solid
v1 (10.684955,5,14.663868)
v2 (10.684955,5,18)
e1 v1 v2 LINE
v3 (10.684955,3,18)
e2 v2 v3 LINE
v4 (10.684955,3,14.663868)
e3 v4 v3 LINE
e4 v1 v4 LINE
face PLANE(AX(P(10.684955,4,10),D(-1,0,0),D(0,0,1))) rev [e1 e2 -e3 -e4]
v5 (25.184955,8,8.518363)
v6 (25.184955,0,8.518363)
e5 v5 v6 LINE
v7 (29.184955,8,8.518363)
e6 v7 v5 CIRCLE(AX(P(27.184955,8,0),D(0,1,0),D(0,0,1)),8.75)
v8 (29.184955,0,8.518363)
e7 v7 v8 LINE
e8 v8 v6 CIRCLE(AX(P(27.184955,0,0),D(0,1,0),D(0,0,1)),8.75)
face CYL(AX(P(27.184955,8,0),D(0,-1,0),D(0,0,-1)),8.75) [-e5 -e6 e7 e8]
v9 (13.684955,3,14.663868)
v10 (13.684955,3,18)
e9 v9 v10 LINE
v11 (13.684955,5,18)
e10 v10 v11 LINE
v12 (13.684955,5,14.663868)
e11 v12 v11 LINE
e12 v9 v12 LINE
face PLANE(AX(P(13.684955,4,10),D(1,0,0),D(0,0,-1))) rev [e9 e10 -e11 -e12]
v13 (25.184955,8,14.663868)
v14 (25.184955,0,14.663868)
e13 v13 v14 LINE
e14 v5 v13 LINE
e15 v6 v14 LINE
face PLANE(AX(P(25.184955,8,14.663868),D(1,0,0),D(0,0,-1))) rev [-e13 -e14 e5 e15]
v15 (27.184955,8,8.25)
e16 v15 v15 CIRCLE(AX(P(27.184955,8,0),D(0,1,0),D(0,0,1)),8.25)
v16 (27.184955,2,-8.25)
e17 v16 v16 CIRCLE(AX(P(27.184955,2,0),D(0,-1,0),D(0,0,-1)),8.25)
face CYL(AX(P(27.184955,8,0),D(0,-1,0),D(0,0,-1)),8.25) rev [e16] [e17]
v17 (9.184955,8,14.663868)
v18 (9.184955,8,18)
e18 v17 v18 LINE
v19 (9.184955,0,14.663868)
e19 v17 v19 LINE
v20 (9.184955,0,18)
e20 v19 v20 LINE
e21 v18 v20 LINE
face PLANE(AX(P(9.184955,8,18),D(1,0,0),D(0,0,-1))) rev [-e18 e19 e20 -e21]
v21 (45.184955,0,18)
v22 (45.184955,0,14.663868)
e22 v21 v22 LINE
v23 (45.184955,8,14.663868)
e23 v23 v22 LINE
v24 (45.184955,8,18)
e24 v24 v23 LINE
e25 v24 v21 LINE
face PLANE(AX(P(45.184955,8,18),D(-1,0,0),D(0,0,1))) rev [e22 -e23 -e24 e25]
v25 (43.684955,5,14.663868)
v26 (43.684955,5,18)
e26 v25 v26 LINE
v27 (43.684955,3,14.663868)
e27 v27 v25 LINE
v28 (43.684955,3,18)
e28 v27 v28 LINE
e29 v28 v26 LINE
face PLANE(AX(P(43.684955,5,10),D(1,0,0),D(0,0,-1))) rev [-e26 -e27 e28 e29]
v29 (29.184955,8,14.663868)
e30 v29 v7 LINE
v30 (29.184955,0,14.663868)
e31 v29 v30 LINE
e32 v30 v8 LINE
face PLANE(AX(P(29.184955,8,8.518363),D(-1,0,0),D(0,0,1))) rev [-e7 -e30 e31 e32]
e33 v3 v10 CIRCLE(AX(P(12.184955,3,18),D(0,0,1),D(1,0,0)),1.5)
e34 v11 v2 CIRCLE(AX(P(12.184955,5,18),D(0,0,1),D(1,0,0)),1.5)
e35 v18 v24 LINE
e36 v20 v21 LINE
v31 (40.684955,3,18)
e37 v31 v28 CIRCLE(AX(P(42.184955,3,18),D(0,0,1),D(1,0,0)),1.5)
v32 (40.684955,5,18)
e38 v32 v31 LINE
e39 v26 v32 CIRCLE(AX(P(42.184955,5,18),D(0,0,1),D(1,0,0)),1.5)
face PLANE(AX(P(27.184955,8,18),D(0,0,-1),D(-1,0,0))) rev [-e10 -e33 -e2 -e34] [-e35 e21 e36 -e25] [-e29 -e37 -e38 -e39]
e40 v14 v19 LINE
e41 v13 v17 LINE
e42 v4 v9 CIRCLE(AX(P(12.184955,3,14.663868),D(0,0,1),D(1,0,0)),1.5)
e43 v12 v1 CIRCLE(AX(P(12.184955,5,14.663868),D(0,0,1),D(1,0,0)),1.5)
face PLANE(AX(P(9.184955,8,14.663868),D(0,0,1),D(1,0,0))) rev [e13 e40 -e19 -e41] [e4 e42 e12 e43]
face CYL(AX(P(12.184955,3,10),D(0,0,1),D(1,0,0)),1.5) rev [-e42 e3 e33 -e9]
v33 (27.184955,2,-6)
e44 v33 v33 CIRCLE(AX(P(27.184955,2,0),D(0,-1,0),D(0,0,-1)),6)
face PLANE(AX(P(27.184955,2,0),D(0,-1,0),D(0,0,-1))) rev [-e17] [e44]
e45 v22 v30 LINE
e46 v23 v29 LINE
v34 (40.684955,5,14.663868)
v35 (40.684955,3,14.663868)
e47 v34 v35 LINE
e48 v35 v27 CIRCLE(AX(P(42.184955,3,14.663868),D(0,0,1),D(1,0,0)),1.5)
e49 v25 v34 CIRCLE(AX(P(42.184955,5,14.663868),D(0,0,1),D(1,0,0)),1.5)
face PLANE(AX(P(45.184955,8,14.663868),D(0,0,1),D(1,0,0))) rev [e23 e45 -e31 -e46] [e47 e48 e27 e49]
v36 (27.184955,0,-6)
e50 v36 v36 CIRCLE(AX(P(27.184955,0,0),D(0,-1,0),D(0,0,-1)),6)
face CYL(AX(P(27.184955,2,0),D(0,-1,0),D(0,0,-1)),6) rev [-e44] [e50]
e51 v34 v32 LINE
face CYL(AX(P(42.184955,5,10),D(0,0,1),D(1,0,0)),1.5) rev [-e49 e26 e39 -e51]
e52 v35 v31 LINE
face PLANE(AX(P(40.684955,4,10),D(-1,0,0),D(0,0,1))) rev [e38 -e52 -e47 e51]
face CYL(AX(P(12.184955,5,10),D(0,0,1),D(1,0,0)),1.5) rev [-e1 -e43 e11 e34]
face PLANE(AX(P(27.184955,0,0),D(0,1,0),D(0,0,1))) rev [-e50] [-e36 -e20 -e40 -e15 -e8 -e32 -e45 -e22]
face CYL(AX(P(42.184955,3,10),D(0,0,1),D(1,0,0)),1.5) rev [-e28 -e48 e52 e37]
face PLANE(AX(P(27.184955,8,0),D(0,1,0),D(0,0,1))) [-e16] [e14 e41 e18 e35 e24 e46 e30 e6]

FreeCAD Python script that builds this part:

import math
import FreeCAD as App
import Part
import Sketcher

V = App.Vector


def edges_at(feature, points):
    """Names of the edges that pass closest to the given points."""
    edges = feature.Shape.Edges
    near = lambda p: min(range(len(edges)), key=lambda i: edges[i].distToShape(Part.Vertex(*p))[0])
    return sorted({f"Edge{near(p) + 1}" for p in points})


def add_polygon(sketch, points):
    """Adds a closed chain of lines whose ends are joined by coincident constraints."""
    first, n = sketch.GeometryCount, len(points)
    for a, b in zip(points, points[1:] + points[:1]):
        sketch.addGeometry(Part.LineSegment(App.Vector(*a, 0), App.Vector(*b, 0)), False)
    for i in range(n):
        sketch.addConstraint(Sketcher.Constraint("Coincident", first + i, 2, first + (i + 1) % n, 1))

doc = App.newDocument("Part")
body = doc.addObject("PartDesign::Body", "Body")

# Sketch on XZ plane
sketch1 = body.newObject("Sketcher::SketchObject", "Sketch")
sketch1.AttachmentSupport = (doc.getObject("XZ_Plane"), [""])
sketch1.MapMode = "FlatFace"
sketch1.addGeometry([
    Part.Circle(V(0, 0, 0), V(0, 0, 1), 8.75),
    Part.Circle(V(0, 0, 0), V(0, 0, 1), 8.25),
], False)
sketch1.addConstraint([
    Sketcher.Constraint("Coincident", 0, 3, -1, 1),
    Sketcher.Constraint("Coincident", 1, 3, -1, 1),
    Sketcher.Constraint("Diameter", 0, 17.5),
    Sketcher.Constraint("Diameter", 1, 16.5),
])
pad1 = body.newObject("PartDesign::Pad", "Pad")
pad1.Profile = sketch1
pad1.Length = 10
pad1.Reversed = True

# Sketch on XZ plane
sketch2 = body.newObject("Sketcher::SketchObject", "Sketch001")
sketch2.AttachmentSupport = (doc.getObject("XZ_Plane"), [""])
sketch2.MapMode = "FlatFace"
sketch2.addGeometry([
    Part.Circle(V(0, 0, 0), V(0, 0, 1), 8.25),
    Part.Circle(V(0, 0, 0), V(0, 0, 1), 2),
], False)
sketch2.addConstraint([
    Sketcher.Constraint("Coincident", 0, 3, -1, 1),
    Sketcher.Constraint("Coincident", 1, 3, -1, 1),
    Sketcher.Constraint("Diameter", 1, 4.0),
    Sketcher.Constraint("Diameter", 0, 16.5),
])
pad2 = body.newObject("PartDesign::Pad", "Pad001")
pad2.Profile = sketch2
pad2.Length = 4
pad2.Reversed = True

# Sketch on XZ plane
sketch3 = body.newObject("Sketcher::SketchObject", "Sketch002")
sketch3.AttachmentSupport = (doc.getObject("XZ_Plane"), [""])
sketch3.MapMode = "FlatFace"
add_polygon(sketch3, [(-2, -8.518363), (2, -8.518363), (2, -15), (15, -15), (15, -18), (-15, -18), (-15, -15), (-2, -15)])  # lines 0-7
sketch3.addConstraint([
    Sketcher.Constraint("Horizontal", 0),
    Sketcher.Constraint("Vertical", 1),
    Sketcher.Constraint("Horizontal", 2),
    Sketcher.Constraint("Vertical", 3),
    Sketcher.Constraint("Horizontal", 4),
    Sketcher.Constraint("Vertical", 5),
    Sketcher.Constraint("Horizontal", 6),
    Sketcher.Constraint("Vertical", 7),
    Sketcher.Constraint("Symmetric", 2, 2, 5, 2, -2),
    Sketcher.Constraint("Equal", 2, 6),
    Sketcher.Constraint("DistanceX", 0, 1, 0, 2, 4.0),
    Sketcher.Constraint("DistanceX", 2, 1, 2, 2, 13.0),
    Sketcher.Constraint("DistanceY", 3, 2, 3, 1, 3.0),
    Sketcher.Constraint("DistanceY", 1, 2, -1, 1, 15.0),
    Sketcher.Constraint("DistanceY", 1, 2, 1, 1, 6.481637),
])
pad3 = body.newObject("PartDesign::Pad", "Pad002")
pad3.Profile = sketch3
pad3.Length = 8
pad3.Reversed = True

# Sketch on YZ plane
sketch4 = body.newObject("Sketcher::SketchObject", "Sketch003")
sketch4.AttachmentSupport = (doc.getObject("YZ_Plane"), [""])
sketch4.MapMode = "FlatFace"
sketch4.AttachmentOffset = App.Placement(V(0, 0, 15), App.Rotation())
add_polygon(sketch4, [(8, -15), (0, -15), (0, -18), (8, -18)])  # lines 0-3
sketch4.addConstraint([
    Sketcher.Constraint("Horizontal", 0),
    Sketcher.Constraint("Vertical", 1),
    Sketcher.Constraint("Horizontal", 2),
    Sketcher.Constraint("Vertical", 3),
    Sketcher.Constraint("PointOnObject", 0, 2, -2),
    Sketcher.Constraint("DistanceX", 0, 2, 0, 1, 8.0),
    Sketcher.Constraint("DistanceY", 1, 2, 1, 1, 3.0),
    Sketcher.Constraint("DistanceY", 0, 2, -1, 1, 15.0),
])
pad4 = body.newObject("PartDesign::Pad", "Pad003")
pad4.Profile = sketch4
pad4.Length = 3

# Sketch on YZ plane
sketch5 = body.newObject("Sketcher::SketchObject", "Sketch004")
sketch5.AttachmentSupport = (doc.getObject("YZ_Plane"), [""])
sketch5.MapMode = "FlatFace"
sketch5.AttachmentOffset = App.Placement(V(0, 0, -15), App.Rotation())
add_polygon(sketch5, [(8, -18), (0, -18), (0, -15), (8, -15)])  # lines 0-3
sketch5.addConstraint([
    Sketcher.Constraint("Horizontal", 0),
    Sketcher.Constraint("Vertical", 1),
    Sketcher.Constraint("Horizontal", 2),
    Sketcher.Constraint("Vertical", 3),
    Sketcher.Constraint("PointOnObject", 0, 2, -2),
    Sketcher.Constraint("DistanceX", 0, 2, 0, 1, 8.0),
    Sketcher.Constraint("DistanceY", 1, 1, 1, 2, 3.0),
    Sketcher.Constraint("DistanceY", 0, 2, -1, 1, 18.0),
])
pad5 = body.newObject("PartDesign::Pad", "Pad004")
pad5.Profile = sketch5
pad5.Length = 3
pad5.Reversed = True

# Sketch on XY plane
sketch6 = body.newObject("Sketcher::SketchObject", "Sketch005")
sketch6.AttachmentSupport = (doc.getObject("XY_Plane"), [""])
sketch6.MapMode = "FlatFace"
sketch6.AttachmentOffset = App.Placement(V(0, 0, -18), App.Rotation())
sketch6.addGeometry(Part.Circle(V(15, 3.754021, 0), V(0, 0, 1), 1.5), False)
sketch6.addConstraint([
    Sketcher.Constraint("Diameter", 0, 3.0),
    Sketcher.Constraint("DistanceX", -1, 1, 0, 3, 15.0),
    Sketcher.Constraint("DistanceY", -1, 1, 0, 3, 3.754021),
])
pocket1 = body.newObject("PartDesign::Pocket", "Pocket")
pocket1.Profile = sketch6
pocket1.Length = 3
pocket1.Reversed = True
doc.recompute()

mirrored = body.newObject("PartDesign::Mirrored", "Mirrored")
mirrored.Originals = [pocket1]
mirrored.MirrorPlane = (doc.getObject("YZ_Plane"), [""])
body.Tip = mirrored
doc.recompute()

fillet = body.newObject("PartDesign::Fillet", "Fillet")
fillet.Base = (mirrored, edges_at(mirrored, [(-2, 4, -8.518), (2, 4, -8.518)]))
fillet.Radius = 5
doc.recompute()

fillet2 = body.newObject("PartDesign::Fillet", "Fillet001")
fillet2.Base = (fillet, edges_at(fillet, [(-2, 4, -15), (2, 4, -15)]))
fillet2.Radius = 2

# Sketch on XZ plane
sketch7 = body.newObject("Sketcher::SketchObject", "Sketch006")
sketch7.AttachmentSupport = (doc.getObject("XZ_Plane"), [""])
sketch7.MapMode = "FlatFace"
add_polygon(sketch7, [(-27.724623, -21.696012), (-7.349238, 14.338234), (7.177657, 11.69698), (13.59213, -5.659829), (24.157145, -16.036183), (2.467165, -27.553796), (0, -27.553796)])  # lines 0-6
sketch7.addConstraint([
    Sketcher.Constraint("Horizontal", 5),
    Sketcher.Constraint("PointOnObject", 5, 2, -2),
    Sketcher.Constraint("Distance", 2, 18.50417),
    Sketcher.Constraint("Distance", 4, 24.558311),
    Sketcher.Constraint("DistanceX", 5, 2, 5, 1, 2.467165),
    Sketcher.Constraint("DistanceY", -1, 1, 1, 2, 11.69698),
    Sketcher.Constraint("DistanceX", -1, 1, 2, 2, 13.59213),
    Sketcher.Constraint("DistanceY", 2, 2, -1, 1, 5.659829),
    Sketcher.Constraint("DistanceY", 6, 2, -1, 1, 21.696012),
    Sketcher.Constraint("DistanceX", 4, 2, 3, 2, 21.689979),
    Sketcher.Constraint("DistanceY", 4, 2, 0, 2, 41.89203),
    Sketcher.Constraint("DistanceX", 6, 2, 4, 2, 30.191788),
    Sketcher.Constraint("Distance", 0, 41.395932),
    Sketcher.Constraint("Distance", 1, 14.765057),
])
pocket2 = body.newObject("PartDesign::Pocket", "Pocket001")
pocket2.Profile = sketch7
pocket2.Length = 10
body2 = doc.addObject("PartDesign::Body", "Body001")

# Sketch on XZ plane
sketch8 = body2.newObject("Sketcher::SketchObject", "Sketch007")
sketch8.AttachmentSupport = (doc.getObject("XZ_Plane001"), [""])
sketch8.MapMode = "FlatFace"
sketch8.addGeometry([
    Part.Circle(V(27.184955, 0, 0), V(0, 0, 1), 8.75),
    Part.Circle(V(27.184955, 0, 0), V(0, 0, 1), 8.25),
], False)
sketch8.addConstraint([
    Sketcher.Constraint("Coincident", 1, 3, 0, 3),
    Sketcher.Constraint("PointOnObject", 0, 3, -1),
    Sketcher.Constraint("Diameter", 0, 17.5),
    Sketcher.Constraint("Diameter", 1, 16.5),
    Sketcher.Constraint("DistanceX", -1, 1, 0, 3, 27.184955),
])
pad6 = body2.newObject("PartDesign::Pad", "Pad005")
pad6.Profile = sketch8
pad6.Length = 8
pad6.Reversed = True

# Sketch on XZ plane
sketch9 = body2.newObject("Sketcher::SketchObject", "Sketch008")
sketch9.AttachmentSupport = (doc.getObject("XZ_Plane001"), [""])
sketch9.MapMode = "FlatFace"
sketch9.addGeometry([
    Part.Circle(V(27.184955, 0, 0), V(0, 0, 1), 8.25),
    Part.Circle(V(27.184955, 0, 0), V(0, 0, 1), 6),
], False)
sketch9.addConstraint([
    Sketcher.Constraint("Coincident", 1, 3, 0, 3),
    Sketcher.Constraint("PointOnObject", 0, 3, -1),
    Sketcher.Constraint("Diameter", 1, 12.0),
    Sketcher.Constraint("Diameter", 0, 16.5),
    Sketcher.Constraint("DistanceX", -1, 1, 0, 3, 27.184955),
])
pad7 = body2.newObject("PartDesign::Pad", "Pad006")
pad7.Profile = sketch9
pad7.Length = 2
pad7.Reversed = True

# Sketch on XZ plane
sketch10 = body2.newObject("Sketcher::SketchObject", "Sketch009")
sketch10.AttachmentSupport = (doc.getObject("XZ_Plane001"), [""])
sketch10.MapMode = "FlatFace"
add_polygon(sketch10, [(45.184955, 18), (45.184955, 14.663868), (29.184955, 14.663868), (29.184955, 8.518363), (25.184955, 8.518363), (25.184955, 14.663868), (9.184955, 14.663868), (9.184955, 18)])  # lines 0-7
sketch10.addConstraint([
    Sketcher.Constraint("Vertical", 0),
    Sketcher.Constraint("Horizontal", 1),
    Sketcher.Constraint("Vertical", 2),
    Sketcher.Constraint("Horizontal", 3),
    Sketcher.Constraint("Vertical", 4),
    Sketcher.Constraint("Horizontal", 5),
    Sketcher.Constraint("Vertical", 6),
    Sketcher.Constraint("Horizontal", 7),
    Sketcher.Constraint("Horizontal", 1, 2, 4, 2),
    Sketcher.Constraint("Equal", 1, 5),
    Sketcher.Constraint("DistanceX", 1, 2, 1, 1, 16.0),
    Sketcher.Constraint("DistanceX", 3, 2, 3, 1, 4.0),
    Sketcher.Constraint("DistanceY", -1, 1, 6, 2, 18.0),
    Sketcher.Constraint("DistanceY", 0, 2, 0, 1, 3.336132),
    Sketcher.Constraint("DistanceY", 2, 2, 2, 1, 6.145505),
    Sketcher.Constraint("DistanceX", -1, 1, 0, 2, 45.184955),
])
pad8 = body2.newObject("PartDesign::Pad", "Pad007")
pad8.Profile = sketch10
pad8.Length = 8
pad8.Reversed = True

# Sketch on XY plane
sketch11 = body2.newObject("Sketcher::SketchObject", "Sketch010")
sketch11.AttachmentSupport = (doc.getObject("XY_Plane001"), [""])
sketch11.MapMode = "FlatFace"
sketch11.AttachmentOffset = App.Placement(V(0, 0, 18), App.Rotation())
sketch11.addGeometry([
    Part.Circle(V(12.184955, 4, 0), V(0, 0, 1), 1.5),
    Part.Circle(V(42.184955, 4, 0), V(0, 0, 1), 1.5),
], False)
sketch11.addConstraint([
    Sketcher.Constraint("Equal", 0, 1),
    Sketcher.Constraint("Horizontal", 0, 3, 1, 3),
    Sketcher.Constraint("Diameter", 0, 3.0),
    Sketcher.Constraint("DistanceY", -1, 1, 0, 3, 4.0),
    Sketcher.Constraint("DistanceX", 0, 3, 1, 3, 30.0),
    Sketcher.Constraint("DistanceX", -1, 1, 0, 3, 12.184955),
])
pocket3 = body2.newObject("PartDesign::Pocket", "Pocket002")
pocket3.Profile = sketch11
pocket3.Length = 8

# Sketch on XY plane
sketch12 = body2.newObject("Sketcher::SketchObject", "Sketch011")
sketch12.AttachmentSupport = (doc.getObject("XY_Plane001"), [""])
sketch12.MapMode = "FlatFace"
sketch12.AttachmentOffset = App.Placement(V(0, 0, 18), App.Rotation())
sketch12.addGeometry([
    Part.ArcOfCircle(Part.Circle(V(12.184955, 5, 0), V(0, 0, 1), 1.5), math.radians(0), math.radians(180)),
    Part.LineSegment(V(10.684955, 5, 0), V(10.684955, 3, 0)),
    Part.ArcOfCircle(Part.Circle(V(12.184955, 3, 0), V(0, 0, 1), 1.5), math.radians(180), math.radians(360)),
    Part.LineSegment(V(13.684955, 3, 0), V(13.684955, 5, 0)),
], False)
sketch12.addConstraint([
    Sketcher.Constraint("Tangent", 0, 2, 1, 1),
    Sketcher.Constraint("Tangent", 1, 2, 2, 1),
    Sketcher.Constraint("Tangent", 2, 2, 3, 1),
    Sketcher.Constraint("Tangent", 3, 2, 0, 1),
    Sketcher.Constraint("Vertical", 1),
    Sketcher.Constraint("Vertical", 3),
    Sketcher.Constraint("Radius", 0, 1.5),
    Sketcher.Constraint("DistanceY", 1, 2, 1, 1, 2.0),
    Sketcher.Constraint("DistanceY", -1, 1, 0, 3, 5.0),
    Sketcher.Constraint("DistanceX", -1, 1, 0, 3, 12.184955),
])
pocket4 = body2.newObject("PartDesign::Pocket", "Pocket003")
pocket4.Profile = sketch12
pocket4.Length = 8

# Sketch on XY plane
sketch13 = body2.newObject("Sketcher::SketchObject", "Sketch012")
sketch13.AttachmentSupport = (doc.getObject("XY_Plane001"), [""])
sketch13.MapMode = "FlatFace"
sketch13.AttachmentOffset = App.Placement(V(0, 0, 18), App.Rotation())
sketch13.addGeometry([
    Part.ArcOfCircle(Part.Circle(V(42.184955, 5, 0), V(0, 0, 1), 1.5), math.radians(0), math.radians(180)),
    Part.LineSegment(V(40.684955, 5, 0), V(40.684955, 3, 0)),
    Part.ArcOfCircle(Part.Circle(V(42.184955, 3, 0), V(0, 0, 1), 1.5), math.radians(180), math.radians(360)),
    Part.LineSegment(V(43.684955, 3, 0), V(43.684955, 5, 0)),
], False)
sketch13.addConstraint([
    Sketcher.Constraint("Tangent", 0, 2, 1, 1),
    Sketcher.Constraint("Tangent", 1, 2, 2, 1),
    Sketcher.Constraint("Tangent", 2, 2, 3, 1),
    Sketcher.Constraint("Tangent", 3, 2, 0, 1),
    Sketcher.Constraint("Vertical", 1),
    Sketcher.Constraint("Vertical", 3),
    Sketcher.Constraint("Radius", 0, 1.5),
    Sketcher.Constraint("DistanceY", 1, 2, 1, 1, 2.0),
    Sketcher.Constraint("DistanceY", -1, 1, 0, 3, 5.0),
    Sketcher.Constraint("DistanceX", -1, 1, 0, 3, 42.184955),
])
pocket5 = body2.newObject("PartDesign::Pocket", "Pocket004")
pocket5.Profile = sketch13
pocket5.Length = 8
body3 = doc.addObject("PartDesign::Body", "Body002")

# Sketch on XZ plane
sketch14 = body3.newObject("Sketcher::SketchObject", "Sketch013")
sketch14.AttachmentSupport = (doc.getObject("XZ_Plane002"), [""])
sketch14.MapMode = "FlatFace"
sketch14.addGeometry([
    Part.Circle(V(-35.091635, 0, 0), V(0, 0, 1), 8.75),
    Part.Circle(V(-35.091635, 0, 0), V(0, 0, 1), 8.25),
], False)
sketch14.addConstraint([
    Sketcher.Constraint("Coincident", 1, 3, 0, 3),
    Sketcher.Constraint("PointOnObject", 0, 3, -1),
    Sketcher.Constraint("Diameter", 0, 17.5),
    Sketcher.Constraint("Diameter", 1, 16.5),
    Sketcher.Constraint("DistanceX", 0, 3, -1, 1, 35.091635),
])
pad9 = body3.newObject("PartDesign::Pad", "Pad008")
pad9.Profile = sketch14
pad9.Length = 8
pad9.Reversed = True

# Sketch on XZ plane
sketch15 = body3.newObject("Sketcher::SketchObject", "Sketch014")
sketch15.AttachmentSupport = (doc.getObject("XZ_Plane002"), [""])
sketch15.MapMode = "FlatFace"
add_polygon(sketch15, [(-37.091635, 8.518363), (-37.091635, 15), (-53.091635, 15), (-53.091635, 18), (-17.091635, 18), (-17.091635, 15), (-33.091635, 15), (-33.091635, 8.518363)])  # lines 0-7
sketch15.addConstraint([
    Sketcher.Constraint("Vertical", 0),
    Sketcher.Constraint("Horizontal", 1),
    Sketcher.Constraint("Vertical", 2),
    Sketcher.Constraint("Horizontal", 3),
    Sketcher.Constraint("Vertical", 4),
    Sketcher.Constraint("Horizontal", 5),
    Sketcher.Constraint("Vertical", 6),
    Sketcher.Constraint("Horizontal", 7),
    Sketcher.Constraint("Horizontal", 1, 2, 4, 2),
    Sketcher.Constraint("Equal", 1, 5),
    Sketcher.Constraint("DistanceX", 1, 2, 1, 1, 16.0),
    Sketcher.Constraint("DistanceX", 3, 1, 3, 2, 36.0),
    Sketcher.Constraint("DistanceY", 2, 1, 2, 2, 3.0),
    Sketcher.Constraint("DistanceY", -1, 1, 0, 2, 15.0),
    Sketcher.Constraint("DistanceY", 0, 1, 0, 2, 6.481637),
    Sketcher.Constraint("DistanceX", 0, 2, -1, 1, 37.091635),
])
pad10 = body3.newObject("PartDesign::Pad", "Pad009")
pad10.Profile = sketch15
pad10.Length = 8
pad10.Reversed = True

# Sketch on XY plane
sketch16 = body3.newObject("Sketcher::SketchObject", "Sketch015")
sketch16.AttachmentSupport = (doc.getObject("XY_Plane002"), [""])
sketch16.MapMode = "FlatFace"
sketch16.AttachmentOffset = App.Placement(V(0, 0, 18), App.Rotation())
sketch16.addGeometry([
    Part.Circle(V(-50.091635, 4, 0), V(0, 0, 1), 1.5),
    Part.Circle(V(-20.091635, 4, 0), V(0, 0, 1), 1.5),
], False)
sketch16.addConstraint([
    Sketcher.Constraint("Equal", 0, 1),
    Sketcher.Constraint("Horizontal", 0, 3, 1, 3),
    Sketcher.Constraint("Diameter", 0, 3.0),
    Sketcher.Constraint("DistanceY", -1, 1, 0, 3, 4.0),
    Sketcher.Constraint("DistanceX", 0, 3, 1, 3, 30.0),
    Sketcher.Constraint("DistanceX", 0, 3, -1, 1, 50.091635),
])
pocket6 = body3.newObject("PartDesign::Pocket", "Pocket005")
pocket6.Profile = sketch16
pocket6.Length = 8

# Sketch on XZ plane
sketch17 = body3.newObject("Sketcher::SketchObject", "Sketch016")
sketch17.AttachmentSupport = (doc.getObject("XZ_Plane002"), [""])
sketch17.MapMode = "FlatFace"
add_polygon(sketch17, [(-7.107938, 29.65334), (-5.334341, -26.542566), (-48.199741, -26.542566), (-79.009308, 19.085416), (-79.009308, 22.653952)])  # lines 0-4
sketch17.addConstraint([
    Sketcher.Constraint("Horizontal", 1),
    Sketcher.Constraint("Vertical", 3),
    Sketcher.Constraint("DistanceX", 1, 2, 1, 1, 42.8654),
    Sketcher.Constraint("Distance", 2, 55.05581),
    Sketcher.Constraint("Distance", 4, 72.241252),
    Sketcher.Constraint("DistanceY", 3, 1, 3, 2, 3.568536),
    Sketcher.Constraint("DistanceX", 0, 2, -1, 1, 5.334341),
    Sketcher.Constraint("DistanceX", 2, 2, -1, 1, 79.009308),
    Sketcher.Constraint("DistanceX", 4, 2, -1, 1, 7.107938),
    Sketcher.Constraint("DistanceY", -1, 1, 4, 2, 29.65334),
])
pocket7 = body3.newObject("PartDesign::Pocket", "Pocket006")
pocket7.Profile = sketch17
pocket7.Length = 10

doc.recompute()
